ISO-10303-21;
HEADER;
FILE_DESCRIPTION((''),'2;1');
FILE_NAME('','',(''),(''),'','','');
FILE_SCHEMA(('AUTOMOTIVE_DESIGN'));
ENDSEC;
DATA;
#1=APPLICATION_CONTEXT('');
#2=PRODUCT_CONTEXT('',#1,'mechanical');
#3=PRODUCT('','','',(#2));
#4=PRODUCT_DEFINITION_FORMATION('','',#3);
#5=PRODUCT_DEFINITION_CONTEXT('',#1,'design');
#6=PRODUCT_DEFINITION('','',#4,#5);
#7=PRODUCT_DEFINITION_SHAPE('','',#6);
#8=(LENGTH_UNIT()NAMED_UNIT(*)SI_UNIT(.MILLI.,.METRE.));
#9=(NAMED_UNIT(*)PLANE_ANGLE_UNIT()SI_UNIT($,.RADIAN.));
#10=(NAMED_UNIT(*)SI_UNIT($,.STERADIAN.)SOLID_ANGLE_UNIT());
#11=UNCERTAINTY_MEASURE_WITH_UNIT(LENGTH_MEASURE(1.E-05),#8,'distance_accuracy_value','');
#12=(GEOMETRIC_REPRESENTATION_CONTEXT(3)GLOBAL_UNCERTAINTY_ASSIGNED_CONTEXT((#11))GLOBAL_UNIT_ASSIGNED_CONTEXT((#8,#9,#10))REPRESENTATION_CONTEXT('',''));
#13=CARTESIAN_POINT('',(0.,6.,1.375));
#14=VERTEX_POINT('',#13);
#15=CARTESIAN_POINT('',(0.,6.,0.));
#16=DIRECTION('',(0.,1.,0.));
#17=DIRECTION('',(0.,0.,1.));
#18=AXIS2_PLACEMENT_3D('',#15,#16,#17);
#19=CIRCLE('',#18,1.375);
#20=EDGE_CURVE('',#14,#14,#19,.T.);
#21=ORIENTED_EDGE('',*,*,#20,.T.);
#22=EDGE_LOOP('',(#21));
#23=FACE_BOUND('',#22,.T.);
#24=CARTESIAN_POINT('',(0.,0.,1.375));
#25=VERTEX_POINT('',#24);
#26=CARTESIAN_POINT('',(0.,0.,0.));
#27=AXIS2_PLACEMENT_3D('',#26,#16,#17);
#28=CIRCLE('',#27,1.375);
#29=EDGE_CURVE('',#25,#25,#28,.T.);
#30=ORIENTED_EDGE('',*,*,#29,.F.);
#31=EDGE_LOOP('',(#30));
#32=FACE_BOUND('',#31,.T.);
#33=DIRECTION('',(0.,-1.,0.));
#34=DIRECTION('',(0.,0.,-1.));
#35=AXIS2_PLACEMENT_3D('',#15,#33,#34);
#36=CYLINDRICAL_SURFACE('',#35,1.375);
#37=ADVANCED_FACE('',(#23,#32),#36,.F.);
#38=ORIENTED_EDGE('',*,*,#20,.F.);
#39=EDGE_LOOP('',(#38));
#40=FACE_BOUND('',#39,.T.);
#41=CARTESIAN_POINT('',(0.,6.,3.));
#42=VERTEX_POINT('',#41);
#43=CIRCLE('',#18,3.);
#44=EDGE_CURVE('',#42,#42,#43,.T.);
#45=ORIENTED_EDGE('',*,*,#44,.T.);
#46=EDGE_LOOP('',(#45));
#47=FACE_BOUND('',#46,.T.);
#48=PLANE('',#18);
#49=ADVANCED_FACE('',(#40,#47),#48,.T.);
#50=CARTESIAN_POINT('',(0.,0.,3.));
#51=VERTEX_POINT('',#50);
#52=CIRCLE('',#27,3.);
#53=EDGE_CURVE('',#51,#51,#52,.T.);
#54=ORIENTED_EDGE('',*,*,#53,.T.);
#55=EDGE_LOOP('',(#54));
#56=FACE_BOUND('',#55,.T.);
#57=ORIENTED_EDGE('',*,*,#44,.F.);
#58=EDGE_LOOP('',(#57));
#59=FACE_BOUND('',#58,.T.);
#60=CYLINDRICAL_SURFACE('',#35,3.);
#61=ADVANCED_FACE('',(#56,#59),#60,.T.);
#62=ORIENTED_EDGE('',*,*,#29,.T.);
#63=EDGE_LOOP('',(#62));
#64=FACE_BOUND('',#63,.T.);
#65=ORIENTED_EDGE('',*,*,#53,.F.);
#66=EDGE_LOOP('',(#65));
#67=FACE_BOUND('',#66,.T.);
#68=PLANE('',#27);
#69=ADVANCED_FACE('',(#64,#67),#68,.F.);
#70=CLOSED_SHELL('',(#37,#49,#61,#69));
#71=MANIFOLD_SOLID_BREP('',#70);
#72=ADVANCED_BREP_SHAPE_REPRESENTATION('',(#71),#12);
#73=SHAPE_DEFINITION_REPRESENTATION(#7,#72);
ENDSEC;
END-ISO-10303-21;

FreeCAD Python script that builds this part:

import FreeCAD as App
import Part
import Sketcher

doc = App.newDocument("Part")
params = doc.addObject("Spreadsheet::Sheet", "Params")
for row, (alias, value) in enumerate([
    ("sketch1_diameter", "6 mm"),
    ("sketch1_diameter2", "2.75 mm"),
    ("pad1_length", "6 mm"),
], start=1):
    params.set(f"A{row}", alias)
    params.set(f"B{row}", "=" + value)
    params.setAlias(f"B{row}", alias)

body = doc.addObject("PartDesign::Body", "Body")

sketch1 = body.newObject("Sketcher::SketchObject", "Sketch")
sketch1.AttachmentSupport = (doc.getObject("XZ_Plane"), [""])
sketch1.MapMode = "FlatFace"
sketch1.addGeometry(Part.Circle(App.Vector(0, 0, 0), App.Vector(0, 0, 1), 3), False)
sketch1.addGeometry(Part.Circle(App.Vector(0, 0, 0), App.Vector(0, 0, 1), 1.375), False)
sketch1.addConstraint(Sketcher.Constraint("Coincident", 0, 3, -1, 1))
sketch1.addConstraint(Sketcher.Constraint("Coincident", 1, 3, -1, 1))
sketch1.addConstraint(Sketcher.Constraint("Diameter", 0, 6.0))
sketch1.addConstraint(Sketcher.Constraint("Diameter", 1, 2.75))
sketch1.setExpression("Constraints[2]", "Params.sketch1_diameter")
sketch1.setExpression("Constraints[3]", "Params.sketch1_diameter2")
pad1 = body.newObject("PartDesign::Pad", "Pad")
pad1.Profile = sketch1
pad1.setExpression("Length", "Params.pad1_length")
pad1.Reversed = True

doc.recompute()
